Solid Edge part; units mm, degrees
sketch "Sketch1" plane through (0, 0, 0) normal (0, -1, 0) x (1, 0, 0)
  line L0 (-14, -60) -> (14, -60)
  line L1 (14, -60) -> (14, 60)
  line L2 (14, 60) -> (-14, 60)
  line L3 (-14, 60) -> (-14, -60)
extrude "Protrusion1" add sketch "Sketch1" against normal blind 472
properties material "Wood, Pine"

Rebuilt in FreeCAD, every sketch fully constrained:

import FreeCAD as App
import Part
import Sketcher
from FreeCAD import Vector
Q = App.Units.Quantity


def add_polygon(sketch, points):
    """Adds a closed chain of lines whose ends are joined by coincident constraints."""
    first, n = sketch.GeometryCount, len(points)
    for a, b in zip(points, points[1:] + points[:1]):
        sketch.addGeometry(Part.LineSegment(App.Vector(*a, 0), App.Vector(*b, 0)), False)
    for i in range(n):
        sketch.addConstraint(Sketcher.Constraint("Coincident", first + i, 2, first + (i + 1) % n, 1))

doc = App.newDocument("Part")
params = doc.addObject("Spreadsheet::Sheet", "Params")
for row, (alias, value) in enumerate([
    ("sketch1_width", "28 mm"),
    ("sketch1_height", "120 mm"),
    ("pad1_length", "472 mm"),
], start=1):
    params.set(f"A{row}", alias)
    params.set(f"B{row}", "=" + value)
    params.setAlias(f"B{row}", alias)

body = doc.addObject("PartDesign::Body", "Body")

# Sketch on XZ plane
sketch1 = body.newObject("Sketcher::SketchObject", "Sketch")
sketch1.AttachmentSupport = (doc.getObject("XZ_Plane"), [""])
sketch1.MapMode = "FlatFace"
add_polygon(sketch1, [(-14, 60), (-14, -60), (14, -60), (14, 60)])  # lines 0-3
sketch1.addConstraint(Sketcher.Constraint("Vertical", 0))
sketch1.addConstraint(Sketcher.Constraint("Horizontal", 1))
sketch1.addConstraint(Sketcher.Constraint("Vertical", 2))
sketch1.addConstraint(Sketcher.Constraint("Horizontal", 3))
sketch1.addConstraint(Sketcher.Constraint("Symmetric", 0, 2, 2, 2, -1, 1))
sketch1.addConstraint(Sketcher.Constraint("DistanceX", 1, 1, 1, 2, Q("28 mm")))
sketch1.addConstraint(Sketcher.Constraint("DistanceY", 0, 2, 0, 1, Q("120 mm")))
sketch1.setExpression("Constraints[9]", "Params.sketch1_width")
sketch1.setExpression("Constraints[10]", "Params.sketch1_height")
pad1 = body.newObject("PartDesign::Pad", "Pad")
pad1.Profile = sketch1
pad1.setExpression("Length", "Params.pad1_length")
pad1.Reversed = True

doc.recompute()
